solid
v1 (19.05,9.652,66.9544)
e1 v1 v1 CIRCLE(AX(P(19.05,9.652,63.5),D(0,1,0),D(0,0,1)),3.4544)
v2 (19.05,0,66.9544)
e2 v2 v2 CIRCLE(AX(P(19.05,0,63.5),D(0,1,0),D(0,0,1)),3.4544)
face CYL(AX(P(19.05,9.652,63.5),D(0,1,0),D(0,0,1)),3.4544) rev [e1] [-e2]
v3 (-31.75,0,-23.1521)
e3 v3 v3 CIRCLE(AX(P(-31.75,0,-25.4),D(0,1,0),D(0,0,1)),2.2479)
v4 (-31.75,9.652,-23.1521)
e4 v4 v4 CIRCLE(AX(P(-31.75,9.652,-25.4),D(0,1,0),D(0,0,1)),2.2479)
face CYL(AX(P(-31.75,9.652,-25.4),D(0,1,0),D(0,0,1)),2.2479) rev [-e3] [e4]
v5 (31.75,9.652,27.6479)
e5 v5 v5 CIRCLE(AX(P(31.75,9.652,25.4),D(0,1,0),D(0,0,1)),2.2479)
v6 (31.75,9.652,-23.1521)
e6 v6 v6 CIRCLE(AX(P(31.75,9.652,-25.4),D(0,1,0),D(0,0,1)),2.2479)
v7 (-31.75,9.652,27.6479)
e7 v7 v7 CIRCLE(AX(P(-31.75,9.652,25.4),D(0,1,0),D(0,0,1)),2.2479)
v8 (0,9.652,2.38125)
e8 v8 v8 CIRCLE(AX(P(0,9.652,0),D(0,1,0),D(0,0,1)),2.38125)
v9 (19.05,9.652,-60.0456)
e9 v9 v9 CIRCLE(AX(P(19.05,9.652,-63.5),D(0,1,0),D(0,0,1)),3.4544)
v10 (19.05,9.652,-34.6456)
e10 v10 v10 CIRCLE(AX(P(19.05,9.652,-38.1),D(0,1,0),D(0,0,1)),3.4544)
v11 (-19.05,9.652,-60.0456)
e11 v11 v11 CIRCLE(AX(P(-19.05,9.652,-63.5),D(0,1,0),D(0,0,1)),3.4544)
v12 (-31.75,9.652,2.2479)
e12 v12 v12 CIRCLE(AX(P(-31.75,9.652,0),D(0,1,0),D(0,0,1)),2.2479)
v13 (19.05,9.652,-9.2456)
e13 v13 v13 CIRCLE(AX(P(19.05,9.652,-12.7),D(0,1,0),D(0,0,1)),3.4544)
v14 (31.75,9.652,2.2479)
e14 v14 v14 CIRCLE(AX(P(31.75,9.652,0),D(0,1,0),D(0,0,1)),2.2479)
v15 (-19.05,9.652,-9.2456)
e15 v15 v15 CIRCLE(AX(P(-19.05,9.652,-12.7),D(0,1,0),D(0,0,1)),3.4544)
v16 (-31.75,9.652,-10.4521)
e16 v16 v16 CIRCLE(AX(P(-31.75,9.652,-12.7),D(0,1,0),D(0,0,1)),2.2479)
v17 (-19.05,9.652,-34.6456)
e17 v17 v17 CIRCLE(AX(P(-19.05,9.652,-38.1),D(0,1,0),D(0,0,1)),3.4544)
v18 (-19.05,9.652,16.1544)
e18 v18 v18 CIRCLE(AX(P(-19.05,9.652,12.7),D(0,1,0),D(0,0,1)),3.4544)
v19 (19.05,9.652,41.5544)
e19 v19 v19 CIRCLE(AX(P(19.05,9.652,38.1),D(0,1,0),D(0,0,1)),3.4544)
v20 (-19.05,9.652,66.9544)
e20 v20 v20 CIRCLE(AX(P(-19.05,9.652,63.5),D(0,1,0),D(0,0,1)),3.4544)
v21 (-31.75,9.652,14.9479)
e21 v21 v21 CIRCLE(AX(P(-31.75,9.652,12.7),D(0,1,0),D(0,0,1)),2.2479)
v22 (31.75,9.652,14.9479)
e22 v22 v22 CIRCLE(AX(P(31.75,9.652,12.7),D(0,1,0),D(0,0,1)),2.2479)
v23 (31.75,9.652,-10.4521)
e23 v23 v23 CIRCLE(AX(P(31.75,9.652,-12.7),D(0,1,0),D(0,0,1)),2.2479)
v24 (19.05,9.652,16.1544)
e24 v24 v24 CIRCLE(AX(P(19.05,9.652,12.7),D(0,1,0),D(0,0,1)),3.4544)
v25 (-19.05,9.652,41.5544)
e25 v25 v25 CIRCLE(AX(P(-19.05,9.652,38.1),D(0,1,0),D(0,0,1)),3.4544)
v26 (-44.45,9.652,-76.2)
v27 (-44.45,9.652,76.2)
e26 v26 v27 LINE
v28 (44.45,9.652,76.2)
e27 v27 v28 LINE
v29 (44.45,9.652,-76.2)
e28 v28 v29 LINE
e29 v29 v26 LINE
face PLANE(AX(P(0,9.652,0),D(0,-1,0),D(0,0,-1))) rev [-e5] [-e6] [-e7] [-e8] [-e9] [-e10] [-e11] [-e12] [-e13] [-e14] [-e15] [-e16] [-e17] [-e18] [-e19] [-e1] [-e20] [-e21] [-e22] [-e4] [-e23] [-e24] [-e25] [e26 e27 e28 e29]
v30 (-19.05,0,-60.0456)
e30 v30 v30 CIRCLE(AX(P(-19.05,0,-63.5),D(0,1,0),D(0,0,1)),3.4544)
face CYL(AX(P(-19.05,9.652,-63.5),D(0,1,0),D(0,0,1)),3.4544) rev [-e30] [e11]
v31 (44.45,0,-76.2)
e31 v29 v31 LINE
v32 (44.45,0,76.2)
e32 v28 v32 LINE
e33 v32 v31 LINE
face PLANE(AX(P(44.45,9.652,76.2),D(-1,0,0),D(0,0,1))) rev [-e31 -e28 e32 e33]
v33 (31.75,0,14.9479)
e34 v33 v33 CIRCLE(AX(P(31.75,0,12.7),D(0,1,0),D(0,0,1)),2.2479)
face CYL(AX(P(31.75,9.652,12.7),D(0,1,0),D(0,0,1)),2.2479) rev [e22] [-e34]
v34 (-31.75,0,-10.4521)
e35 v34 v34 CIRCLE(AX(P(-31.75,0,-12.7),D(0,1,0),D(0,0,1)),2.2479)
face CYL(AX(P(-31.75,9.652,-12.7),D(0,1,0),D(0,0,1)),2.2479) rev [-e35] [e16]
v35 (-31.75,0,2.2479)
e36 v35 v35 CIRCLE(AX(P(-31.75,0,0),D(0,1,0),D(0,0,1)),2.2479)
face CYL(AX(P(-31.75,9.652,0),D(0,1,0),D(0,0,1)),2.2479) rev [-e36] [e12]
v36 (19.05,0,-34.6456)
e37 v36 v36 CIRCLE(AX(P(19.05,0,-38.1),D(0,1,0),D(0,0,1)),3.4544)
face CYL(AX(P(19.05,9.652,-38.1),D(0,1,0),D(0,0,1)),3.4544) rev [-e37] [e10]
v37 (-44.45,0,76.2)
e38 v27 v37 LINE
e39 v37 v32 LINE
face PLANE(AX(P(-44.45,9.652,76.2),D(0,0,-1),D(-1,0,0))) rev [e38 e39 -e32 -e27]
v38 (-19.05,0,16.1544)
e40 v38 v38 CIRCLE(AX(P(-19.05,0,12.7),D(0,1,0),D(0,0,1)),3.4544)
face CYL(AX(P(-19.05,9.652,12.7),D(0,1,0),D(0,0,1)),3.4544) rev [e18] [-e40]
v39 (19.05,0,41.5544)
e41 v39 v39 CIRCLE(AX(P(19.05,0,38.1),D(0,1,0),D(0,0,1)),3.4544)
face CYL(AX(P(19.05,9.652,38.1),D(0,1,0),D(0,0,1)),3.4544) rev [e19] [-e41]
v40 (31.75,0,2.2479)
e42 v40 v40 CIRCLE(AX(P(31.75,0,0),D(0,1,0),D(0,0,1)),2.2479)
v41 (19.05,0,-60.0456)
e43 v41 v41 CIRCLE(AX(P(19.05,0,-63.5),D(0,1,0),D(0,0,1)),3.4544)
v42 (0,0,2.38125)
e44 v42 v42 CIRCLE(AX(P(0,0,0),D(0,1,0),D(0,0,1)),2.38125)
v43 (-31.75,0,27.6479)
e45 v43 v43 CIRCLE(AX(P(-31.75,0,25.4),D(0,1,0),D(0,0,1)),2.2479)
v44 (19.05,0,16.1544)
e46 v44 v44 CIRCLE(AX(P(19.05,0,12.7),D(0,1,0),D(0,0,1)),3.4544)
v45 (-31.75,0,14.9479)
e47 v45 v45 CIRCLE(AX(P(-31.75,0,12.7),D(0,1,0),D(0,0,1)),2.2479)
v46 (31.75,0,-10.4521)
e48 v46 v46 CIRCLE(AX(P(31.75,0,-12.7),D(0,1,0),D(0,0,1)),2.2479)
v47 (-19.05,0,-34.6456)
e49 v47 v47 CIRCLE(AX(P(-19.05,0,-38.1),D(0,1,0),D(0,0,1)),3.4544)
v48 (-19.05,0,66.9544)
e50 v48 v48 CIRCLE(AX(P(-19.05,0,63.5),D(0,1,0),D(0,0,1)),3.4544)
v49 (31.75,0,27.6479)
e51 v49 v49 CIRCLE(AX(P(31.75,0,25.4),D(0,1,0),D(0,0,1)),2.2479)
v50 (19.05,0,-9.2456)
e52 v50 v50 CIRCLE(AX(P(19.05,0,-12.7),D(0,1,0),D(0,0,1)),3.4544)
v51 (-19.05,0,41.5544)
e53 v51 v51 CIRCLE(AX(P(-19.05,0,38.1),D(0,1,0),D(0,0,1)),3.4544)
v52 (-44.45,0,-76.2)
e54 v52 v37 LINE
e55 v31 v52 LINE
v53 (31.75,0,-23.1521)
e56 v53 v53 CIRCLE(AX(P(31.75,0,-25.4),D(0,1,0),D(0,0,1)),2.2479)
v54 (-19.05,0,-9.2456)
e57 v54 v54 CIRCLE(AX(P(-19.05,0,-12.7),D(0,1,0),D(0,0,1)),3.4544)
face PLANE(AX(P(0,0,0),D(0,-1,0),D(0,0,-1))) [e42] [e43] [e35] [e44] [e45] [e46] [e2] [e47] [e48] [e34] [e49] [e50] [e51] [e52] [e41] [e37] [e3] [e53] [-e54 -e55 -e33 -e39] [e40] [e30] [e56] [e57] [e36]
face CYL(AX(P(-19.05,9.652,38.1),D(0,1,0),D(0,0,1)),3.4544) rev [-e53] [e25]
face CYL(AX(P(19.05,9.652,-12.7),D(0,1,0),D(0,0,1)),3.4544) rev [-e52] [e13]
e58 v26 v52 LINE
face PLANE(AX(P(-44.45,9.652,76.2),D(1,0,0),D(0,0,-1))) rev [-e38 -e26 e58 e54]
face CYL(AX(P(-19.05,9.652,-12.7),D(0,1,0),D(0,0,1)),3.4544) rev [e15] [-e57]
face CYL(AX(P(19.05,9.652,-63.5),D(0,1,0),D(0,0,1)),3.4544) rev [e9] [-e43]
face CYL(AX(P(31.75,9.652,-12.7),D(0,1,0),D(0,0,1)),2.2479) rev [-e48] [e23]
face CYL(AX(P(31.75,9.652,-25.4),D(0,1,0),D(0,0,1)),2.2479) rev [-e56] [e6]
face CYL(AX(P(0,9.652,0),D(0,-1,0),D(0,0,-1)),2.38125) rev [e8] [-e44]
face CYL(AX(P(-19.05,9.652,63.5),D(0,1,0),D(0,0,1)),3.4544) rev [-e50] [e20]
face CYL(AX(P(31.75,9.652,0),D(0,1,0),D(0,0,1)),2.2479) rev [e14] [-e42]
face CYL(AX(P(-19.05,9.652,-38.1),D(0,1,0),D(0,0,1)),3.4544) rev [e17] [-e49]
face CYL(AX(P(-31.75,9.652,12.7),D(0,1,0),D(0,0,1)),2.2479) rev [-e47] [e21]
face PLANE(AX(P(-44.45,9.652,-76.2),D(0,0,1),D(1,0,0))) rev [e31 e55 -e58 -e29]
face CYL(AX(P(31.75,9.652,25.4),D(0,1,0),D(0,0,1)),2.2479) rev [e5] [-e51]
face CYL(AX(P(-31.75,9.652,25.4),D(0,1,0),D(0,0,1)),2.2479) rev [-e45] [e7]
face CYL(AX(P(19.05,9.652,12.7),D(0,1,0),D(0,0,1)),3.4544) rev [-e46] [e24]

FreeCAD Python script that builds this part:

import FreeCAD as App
import Part
import Sketcher
from FreeCAD import Vector
Q = App.Units.Quantity

doc = App.newDocument("Part")
body = doc.addObject("PartDesign::Body", "Body")

sketch1 = doc.addObject("Sketcher::SketchObject", "Sketch")
body.addObject(sketch1)
sketch1.AttachmentSupport = (doc.XZ_Plane, [""])
sketch1.MapMode = "FlatFace"
sketch1.addGeometry([
    Part.LineSegment(Vector(-44.5, -76.2, 0), Vector(-44.5, 76.2, 0)),
    Part.LineSegment(Vector(-44.5, 76.2, 0), Vector(44.5, 76.2, 0)),
    Part.LineSegment(Vector(44.5, 76.2, 0), Vector(44.5, -76.2, 0)),
    Part.LineSegment(Vector(44.5, -76.2, 0), Vector(-44.5, -76.2, 0)),
    Part.Circle(Vector(0, 0, 0), Vector(0, 0, 1), 2.4),
], False)
sketch1.addConstraint([
    Sketcher.Constraint("Coincident", 0, 2, 1, 1),
    Sketcher.Constraint("Coincident", 1, 2, 2, 1),
    Sketcher.Constraint("Coincident", 2, 2, 3, 1),
    Sketcher.Constraint("Coincident", 3, 2, 0, 1),
    Sketcher.Constraint("Vertical", 0),
    Sketcher.Constraint("Horizontal", 1),
    Sketcher.Constraint("Vertical", 2),
    Sketcher.Constraint("Horizontal", 3),
    Sketcher.Constraint("Coincident", 4, 3, -1, 1),
    Sketcher.Constraint("Symmetric", 0, 2, 2, 2, -1, 1),
    Sketcher.Constraint("DistanceY", 0, 1, 0, 2, Q("6 in")),
    Sketcher.Constraint("Diameter", 4, Q("0.1875 in")),
    Sketcher.Constraint("DistanceX", 1, 1, 1, 2, Q("3.5 in")),
])
pad1 = doc.addObject("PartDesign::Pad", "Pad")
body.addObject(pad1)
pad1.Profile = sketch1
pad1.Length = Q("0.38 in")
pad1.Reversed = True

sketch2 = doc.addObject("Sketcher::SketchObject", "Sketch001")
body.addObject(sketch2)
sketch2.AttachmentSupport = (doc.XZ_Plane, [""])
sketch2.MapMode = "FlatFace"
sketch2.AttachmentOffset = App.Placement(Vector(0, 0, -0.38 * 25.4), App.Rotation())
sketch2.addGeometry([
    Part.Circle(Vector(19.1, -63.5, 0), Vector(0, 0, 1), 3.5),
    Part.Circle(Vector(-19.1, -63.5, 0), Vector(0, 0, 1), 3.5),
    Part.Circle(Vector(-19.1, -38.1, 0), Vector(0, 0, 1), 3.5),
    Part.Circle(Vector(19.1, -38.1, 0), Vector(0, 0, 1), 3.5),
    Part.Circle(Vector(19.1, -12.7, 0), Vector(0, 0, 1), 3.5),
    Part.Circle(Vector(19.1, 12.7, 0), Vector(0, 0, 1), 3.5),
    Part.Circle(Vector(19.1, 38.1, 0), Vector(0, 0, 1), 3.5),
    Part.Circle(Vector(19.1, 63.5, 0), Vector(0, 0, 1), 3.5),
    Part.Circle(Vector(-19.1, -12.7, 0), Vector(0, 0, 1), 3.5),
    Part.Circle(Vector(-19.1, 12.7, 0), Vector(0, 0, 1), 3.5),
    Part.Circle(Vector(-19.1, 38.1, 0), Vector(0, 0, 1), 3.5),
    Part.Circle(Vector(-19.1, 63.5, 0), Vector(0, 0, 1), 3.5),
], False)
sketch2.addConstraint([
    Sketcher.Constraint("Equal", 0, 1),
    Sketcher.Constraint("Equal", 1, 2),
    Sketcher.Constraint("Equal", 2, 3),
    Sketcher.Constraint("Equal", 3, 4),
    Sketcher.Constraint("Equal", 4, 5),
    Sketcher.Constraint("Equal", 5, 6),
    Sketcher.Constraint("Equal", 6, 7),
    Sketcher.Constraint("Equal", 7, 8),
    Sketcher.Constraint("Equal", 8, 9),
    Sketcher.Constraint("Equal", 9, 10),
    Sketcher.Constraint("Equal", 10, 11),
    Sketcher.Constraint("Symmetric", 2, 3, 6, 3, -1, 1),
    Sketcher.Constraint("Symmetric", 1, 3, 7, 3, -1, 1),
    Sketcher.Constraint("Symmetric", 5, 3, 8, 3, -1, 1),
    Sketcher.Constraint("Symmetric", 4, 3, 9, 3, -1, 1),
    Sketcher.Constraint("Symmetric", 3, 3, 10, 3, -1, 1),
    Sketcher.Constraint("Symmetric", 0, 3, 11, 3, -1, 1),
    Sketcher.Constraint("Symmetric", 0, 3, 1, 3, -2),
    Sketcher.Constraint("Symmetric", 2, 3, 3, 3, -2),
    Sketcher.Constraint("Symmetric", 4, 3, 8, 3, -2),
    Sketcher.Constraint("Vertical", 1, 3, 2, 3),
    Sketcher.Constraint("Vertical", 3, 3, 4, 3),
    Sketcher.Constraint("Diameter", 0, Q("0.272 in")),
    Sketcher.Constraint("DistanceY", 1, 3, 2, 3, Q("1 in")),
    Sketcher.Constraint("DistanceY", 3, 3, 4, 3, Q("1 in")),
    Sketcher.Constraint("DistanceY", 4, 3, 5, 3, Q("1 in")),
    Sketcher.Constraint("DistanceX", 1, 3, 0, 3, Q("1.5 in")),
])
doc.recompute()
hole = doc.addObject("PartDesign::Hole", "Hole")
body.addObject(hole)
hole.Profile = sketch2
hole.ThreadType = "None"
hole.Diameter = Q("0.272 in")
hole.DepthType = "ThroughAll"
hole.Reversed = True

sketch3 = doc.addObject("Sketcher::SketchObject", "Sketch002")
body.addObject(sketch3)
sketch3.AttachmentSupport = (doc.XZ_Plane, [""])
sketch3.MapMode = "FlatFace"
sketch3.AttachmentOffset = App.Placement(Vector(0, 0, -0.38 * 25.4), App.Rotation())
sketch3.addGeometry([
    Part.Circle(Vector(-31.8, 0, 0), Vector(0, 0, 1), 2.2),
    Part.Circle(Vector(31.8, 0, 0), Vector(0, 0, 1), 2.2),
    Part.Circle(Vector(-31.8, -12.7, 0), Vector(0, 0, 1), 2.2),
    Part.Circle(Vector(-31.8, -25.4, 0), Vector(0, 0, 1), 2.2),
    Part.Circle(Vector(31.8, -25.4, 0), Vector(0, 0, 1), 2.2),
    Part.Circle(Vector(31.8, -12.7, 0), Vector(0, 0, 1), 2.2),
    Part.Circle(Vector(31.8, 12.7, 0), Vector(0, 0, 1), 2.2),
    Part.Circle(Vector(31.8, 25.4, 0), Vector(0, 0, 1), 2.2),
    Part.Circle(Vector(-31.8, 12.7, 0), Vector(0, 0, 1), 2.2),
    Part.Circle(Vector(-31.8, 25.4, 0), Vector(0, 0, 1), 2.2),
], False)
sketch3.addConstraint([
    Sketcher.Constraint("Equal", 0, 1),
    Sketcher.Constraint("Equal", 1, 2),
    Sketcher.Constraint("Equal", 2, 3),
    Sketcher.Constraint("Equal", 3, 4),
    Sketcher.Constraint("Equal", 4, 5),
    Sketcher.Constraint("Equal", 5, 6),
    Sketcher.Constraint("Equal", 6, 7),
    Sketcher.Constraint("Equal", 7, 8),
    Sketcher.Constraint("Equal", 8, 9),
    Sketcher.Constraint("Symmetric", 0, 3, 1, 3, -1, 1),
    Sketcher.Constraint("Symmetric", 2, 3, 6, 3, -1, 1),
    Sketcher.Constraint("Symmetric", 3, 3, 7, 3, -1, 1),
    Sketcher.Constraint("Symmetric", 5, 3, 8, 3, -1, 1),
    Sketcher.Constraint("Symmetric", 4, 3, 9, 3, -1, 1),
    Sketcher.Constraint("Symmetric", 3, 3, 4, 3, -2),
    Sketcher.Constraint("Symmetric", 2, 3, 5, 3, -2),
    Sketcher.Constraint("PointOnObject", 0, 3, -1),
    Sketcher.Constraint("Vertical", 0, 3, 2, 3),
    Sketcher.Constraint("Vertical", 2, 3, 3, 3),
    Sketcher.Constraint("Diameter", 0, Q("0.177 in")),
    Sketcher.Constraint("DistanceY", 3, 3, -1, 1, Q("1 in")),
    Sketcher.Constraint("DistanceY", 5, 3, 6, 3, Q("1 in")),
    Sketcher.Constraint("DistanceX", 0, 3, 1, 3, Q("2.5 in")),
])
doc.recompute()
hole2 = doc.addObject("PartDesign::Hole", "Hole001")
body.addObject(hole2)
hole2.Profile = sketch3
hole2.ThreadType = "None"
hole2.Diameter = Q("0.177 in")
hole2.DepthType = "ThroughAll"
hole2.Reversed = True

doc.recompute()
